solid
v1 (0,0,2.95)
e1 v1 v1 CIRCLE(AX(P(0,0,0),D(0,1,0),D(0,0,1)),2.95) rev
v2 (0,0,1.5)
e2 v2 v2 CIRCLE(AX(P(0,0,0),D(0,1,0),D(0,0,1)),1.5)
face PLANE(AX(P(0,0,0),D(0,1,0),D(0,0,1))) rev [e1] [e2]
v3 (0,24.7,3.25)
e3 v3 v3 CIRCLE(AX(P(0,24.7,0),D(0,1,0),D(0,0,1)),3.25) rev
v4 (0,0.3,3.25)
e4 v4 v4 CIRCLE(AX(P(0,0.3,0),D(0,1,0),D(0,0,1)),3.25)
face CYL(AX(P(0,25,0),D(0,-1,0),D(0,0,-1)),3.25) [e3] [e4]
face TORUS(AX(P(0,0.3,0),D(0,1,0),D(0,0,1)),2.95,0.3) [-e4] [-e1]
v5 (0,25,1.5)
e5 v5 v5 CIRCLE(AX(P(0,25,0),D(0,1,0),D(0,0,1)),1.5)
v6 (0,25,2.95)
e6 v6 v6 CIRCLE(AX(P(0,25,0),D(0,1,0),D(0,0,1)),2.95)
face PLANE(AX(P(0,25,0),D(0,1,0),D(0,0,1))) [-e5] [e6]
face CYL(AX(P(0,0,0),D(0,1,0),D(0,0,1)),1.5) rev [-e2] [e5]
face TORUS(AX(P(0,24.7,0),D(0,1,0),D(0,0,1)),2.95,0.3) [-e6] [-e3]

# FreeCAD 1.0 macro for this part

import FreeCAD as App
import Part
import Sketcher

V = App.Vector
Q = App.Units.Quantity


def edges_at(feature, points):
    """Names of the edges that pass closest to the given points."""
    edges = feature.Shape.Edges
    near = lambda p: min(range(len(edges)), key=lambda i: edges[i].distToShape(Part.Vertex(*p))[0])
    return sorted({f"Edge{near(p) + 1}" for p in points})

doc = App.newDocument("Part")
body = doc.addObject("PartDesign::Body", "Body")

# Sketch on XZ plane
sketch1 = body.newObject("Sketcher::SketchObject", "Sketch")
sketch1.AttachmentSupport = (doc.getObject("XZ_Plane"), [""])
sketch1.MapMode = "FlatFace"
sketch1.addGeometry(Part.Circle(V(0, 0, 0), V(0, 0, 1), 3.25), False)
sketch1.addConstraint([
    Sketcher.Constraint("Coincident", 0, 3, -1, 1),
    Sketcher.Constraint("Diameter", 0, Q("6.5 mm")),
])
pad1 = body.newObject("PartDesign::Pad", "Pad")
pad1.Profile = sketch1
pad1.Length = 25
pad1.Reversed = True

# Sketch on XZ plane
sketch2 = body.newObject("Sketcher::SketchObject", "Sketch001")
sketch2.AttachmentSupport = (doc.getObject("XZ_Plane"), [""])
sketch2.MapMode = "FlatFace"
sketch2.AttachmentOffset = App.Placement(V(0, 0, -25), App.Rotation())
sketch2.addGeometry(Part.Circle(V(0, 0, 0), V(0, 0, 1), 1.5), False)
sketch2.addConstraint([
    Sketcher.Constraint("Coincident", 0, 3, -1, 1),
    Sketcher.Constraint("Diameter", 0, Q("3 mm")),
])
pocket1 = body.newObject("PartDesign::Pocket", "Pocket")
pocket1.Profile = sketch2
pocket1.Type = "ThroughAll"
pocket1.Reversed = True
doc.recompute()

fillet = body.newObject("PartDesign::Fillet", "Fillet")
fillet.Base = (pocket1, edges_at(pocket1, [(-3.25, 0, 0), (-3.25, 25, 0)]))
fillet.Radius = 0.3

doc.recompute()
